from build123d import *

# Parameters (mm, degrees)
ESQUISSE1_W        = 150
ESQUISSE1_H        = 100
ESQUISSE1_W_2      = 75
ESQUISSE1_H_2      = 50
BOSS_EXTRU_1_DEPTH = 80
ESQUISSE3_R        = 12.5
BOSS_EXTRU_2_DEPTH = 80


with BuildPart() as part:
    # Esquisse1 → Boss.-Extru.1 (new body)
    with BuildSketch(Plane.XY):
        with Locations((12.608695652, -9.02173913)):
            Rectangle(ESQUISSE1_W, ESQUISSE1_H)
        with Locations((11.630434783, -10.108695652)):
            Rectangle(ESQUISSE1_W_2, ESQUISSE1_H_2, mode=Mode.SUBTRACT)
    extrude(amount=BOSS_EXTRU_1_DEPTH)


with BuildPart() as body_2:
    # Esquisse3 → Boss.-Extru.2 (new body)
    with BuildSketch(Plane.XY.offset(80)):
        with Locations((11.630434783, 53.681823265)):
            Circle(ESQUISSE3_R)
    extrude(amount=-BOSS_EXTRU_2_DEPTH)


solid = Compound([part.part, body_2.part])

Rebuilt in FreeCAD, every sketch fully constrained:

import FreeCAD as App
import Part
import Sketcher

V = App.Vector
Q = App.Units.Quantity

doc = App.newDocument("Part")
body = doc.addObject("PartDesign::Body", "Body")

sketch1 = body.newObject("Sketcher::SketchObject", "Sketch")
sketch1.AttachmentSupport = (doc.getObject("XY_Plane"), [""])
sketch1.MapMode = "FlatFace"
sketch1.addGeometry([
    Part.LineSegment(V(-62, 41, 0), V(-62, -59, 0)),
    Part.LineSegment(V(-62, -59, 0), V(88, -59, 0)),
    Part.LineSegment(V(88, -59, 0), V(88, 41, 0)),
    Part.LineSegment(V(88, 41, 0), V(-62, 41, 0)),
    Part.LineSegment(V(49, -35, 0), V(-26, -35, 0)),
    Part.LineSegment(V(-26, -35, 0), V(-26, 15, 0)),
    Part.LineSegment(V(-26, 15, 0), V(49, 15, 0)),
    Part.LineSegment(V(49, 15, 0), V(49, -35, 0)),
], False)
sketch1.addConstraint([
    Sketcher.Constraint("Coincident", 0, 2, 1, 1),
    Sketcher.Constraint("Coincident", 1, 2, 2, 1),
    Sketcher.Constraint("Coincident", 2, 2, 3, 1),
    Sketcher.Constraint("Coincident", 3, 2, 0, 1),
    Sketcher.Constraint("Coincident", 4, 2, 5, 1),
    Sketcher.Constraint("Coincident", 5, 2, 6, 1),
    Sketcher.Constraint("Coincident", 6, 2, 7, 1),
    Sketcher.Constraint("Coincident", 7, 2, 4, 1),
    Sketcher.Constraint("Vertical", 0),
    Sketcher.Constraint("Horizontal", 1),
    Sketcher.Constraint("Vertical", 2),
    Sketcher.Constraint("Horizontal", 3),
    Sketcher.Constraint("Horizontal", 4),
    Sketcher.Constraint("Vertical", 5),
    Sketcher.Constraint("Horizontal", 6),
    Sketcher.Constraint("Vertical", 7),
    Sketcher.Constraint("DistanceX", 1, 1, 1, 2, Q("150 mm")),
    Sketcher.Constraint("DistanceX", 4, 2, 4, 1, Q("75 mm")),
    Sketcher.Constraint("DistanceY", 0, 2, 0, 1, Q("100 mm")),
    Sketcher.Constraint("DistanceY", 5, 1, 5, 2, Q("50 mm")),
    Sketcher.Constraint("DistanceY", 0, 2, -1, 1, Q("59.021739 mm")),
    Sketcher.Constraint("DistanceX", 0, 2, 4, 2, Q("36.521739 mm")),
    Sketcher.Constraint("DistanceX", 0, 2, -1, 1, Q("62.391304 mm")),
    Sketcher.Constraint("DistanceY", 4, 2, -1, 1, Q("35.108696 mm")),
])
pad1 = body.newObject("PartDesign::Pad", "Pad")
pad1.Profile = sketch1
pad1.Length = 80
body2 = doc.addObject("PartDesign::Body", "Body001")

sketch2 = body2.newObject("Sketcher::SketchObject", "Sketch001")
sketch2.AttachmentSupport = (doc.getObject("XY_Plane001"), [""])
sketch2.MapMode = "FlatFace"
sketch2.AttachmentOffset = App.Placement(V(0, 0, 80), App.Rotation())
sketch2.addGeometry(Part.Circle(V(12, 54, 0), V(0, 0, 1), 12), False)
sketch2.addConstraint([
    Sketcher.Constraint("Diameter", 0, Q("25 mm")),
    Sketcher.Constraint("DistanceX", -1, 1, 0, 3, Q("11.630435 mm")),
    Sketcher.Constraint("DistanceY", -1, 1, 0, 3, Q("53.681823 mm")),
])
pad2 = body2.newObject("PartDesign::Pad", "Pad001")
pad2.Profile = sketch2
pad2.Length = 80
pad2.Reversed = True

doc.recompute()
